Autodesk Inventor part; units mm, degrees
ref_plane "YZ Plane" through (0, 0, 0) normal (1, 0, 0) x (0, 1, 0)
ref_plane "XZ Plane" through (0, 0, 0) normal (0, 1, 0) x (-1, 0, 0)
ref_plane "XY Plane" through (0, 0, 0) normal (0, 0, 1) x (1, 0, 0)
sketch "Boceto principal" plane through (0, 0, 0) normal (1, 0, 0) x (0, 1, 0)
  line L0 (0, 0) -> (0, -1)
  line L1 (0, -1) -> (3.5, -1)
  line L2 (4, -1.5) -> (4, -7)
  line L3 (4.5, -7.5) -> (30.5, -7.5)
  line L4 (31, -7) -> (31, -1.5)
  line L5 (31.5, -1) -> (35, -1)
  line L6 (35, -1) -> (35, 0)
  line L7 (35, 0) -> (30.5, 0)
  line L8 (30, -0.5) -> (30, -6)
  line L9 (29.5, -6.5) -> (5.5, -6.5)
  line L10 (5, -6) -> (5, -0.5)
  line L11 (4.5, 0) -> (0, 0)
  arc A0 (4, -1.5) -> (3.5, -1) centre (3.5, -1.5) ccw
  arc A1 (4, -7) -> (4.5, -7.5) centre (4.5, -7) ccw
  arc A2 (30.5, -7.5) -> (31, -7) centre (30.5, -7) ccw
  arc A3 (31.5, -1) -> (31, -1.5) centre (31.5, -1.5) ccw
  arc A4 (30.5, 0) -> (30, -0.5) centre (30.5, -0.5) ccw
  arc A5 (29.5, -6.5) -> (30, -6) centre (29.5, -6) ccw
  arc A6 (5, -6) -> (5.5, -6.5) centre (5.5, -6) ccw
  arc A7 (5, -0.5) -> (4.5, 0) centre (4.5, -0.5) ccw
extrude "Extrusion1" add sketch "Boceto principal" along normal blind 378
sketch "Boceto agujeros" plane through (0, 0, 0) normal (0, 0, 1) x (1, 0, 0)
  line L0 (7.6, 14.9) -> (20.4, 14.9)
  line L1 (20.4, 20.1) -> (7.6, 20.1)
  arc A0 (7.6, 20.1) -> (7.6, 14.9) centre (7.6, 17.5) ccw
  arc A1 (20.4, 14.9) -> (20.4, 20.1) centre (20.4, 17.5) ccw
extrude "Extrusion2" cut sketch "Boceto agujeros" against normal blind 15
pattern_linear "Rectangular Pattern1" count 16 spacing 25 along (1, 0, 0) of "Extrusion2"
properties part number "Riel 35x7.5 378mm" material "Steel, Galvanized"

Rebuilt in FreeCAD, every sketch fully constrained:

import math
import FreeCAD as App
import Part
import Sketcher
from FreeCAD import Vector
Q = App.Units.Quantity

doc = App.newDocument("Part")
params = doc.addObject("Spreadsheet::Sheet", "Params")
for row, (alias, value) in enumerate([
    ("sketch1_radius", "0.5 mm"),
    ("sketch1_width", "26 mm"),
    ("sketch1_height", "1 mm"),
    ("sketch1_width2", "4.5 mm"),
    ("sketch1_height2", "5.5 mm"),
    ("pad1_length", "378 mm"),
    ("sketch2_radius", "2.6 mm"),
    ("sketch2_width", "12.8 mm"),
    ("pocket1_length", "15 mm"),
    ("linearpattern_pitch", "25 mm"),
], start=1):
    params.set(f"A{row}", alias)
    params.set(f"B{row}", "=" + value)
    params.setAlias(f"B{row}", alias)

body = doc.addObject("PartDesign::Body", "Body")

# Sketch on YZ plane
sketch1 = body.newObject("Sketcher::SketchObject", "Sketch")
sketch1.AttachmentSupport = (doc.getObject("YZ_Plane"), [""])
sketch1.MapMode = "FlatFace"
sketch1.addGeometry(Part.LineSegment(Vector(4.5, 0, 0), Vector(0, 0, 0)), False)
sketch1.addGeometry(Part.LineSegment(Vector(0, 0, 0), Vector(0, -1, 0)), False)
sketch1.addGeometry(Part.LineSegment(Vector(0, -1, 0), Vector(3.5, -1, 0)), False)
sketch1.addGeometry(Part.ArcOfCircle(Part.Circle(Vector(3.5, -1.5, 0), Vector(0, 0, 1), 0.5), math.radians(0), math.radians(90)), False)
sketch1.addGeometry(Part.LineSegment(Vector(4, -1.5, 0), Vector(4, -7, 0)), False)
sketch1.addGeometry(Part.ArcOfCircle(Part.Circle(Vector(4.5, -7, 0), Vector(0, 0, 1), 0.5), math.radians(180), math.radians(270)), False)
sketch1.addGeometry(Part.LineSegment(Vector(4.5, -7.5, 0), Vector(30.5, -7.5, 0)), False)
sketch1.addGeometry(Part.ArcOfCircle(Part.Circle(Vector(30.5, -7, 0), Vector(0, 0, 1), 0.5), math.radians(-90), math.radians(0)), False)
sketch1.addGeometry(Part.LineSegment(Vector(31, -7, 0), Vector(31, -1.5, 0)), False)
sketch1.addGeometry(Part.ArcOfCircle(Part.Circle(Vector(31.5, -1.5, 0), Vector(0, 0, 1), 0.5), math.radians(90), math.radians(180)), False)
sketch1.addGeometry(Part.LineSegment(Vector(31.5, -1, 0), Vector(35, -1, 0)), False)
sketch1.addGeometry(Part.LineSegment(Vector(35, -1, 0), Vector(35, 0, 0)), False)
sketch1.addGeometry(Part.LineSegment(Vector(35, 0, 0), Vector(30.5, 0, 0)), False)
sketch1.addGeometry(Part.ArcOfCircle(Part.Circle(Vector(30.5, -0.5, 0), Vector(0, 0, 1), 0.5), math.radians(90), math.radians(180)), False)
sketch1.addGeometry(Part.LineSegment(Vector(30, -0.5, 0), Vector(30, -6, 0)), False)
sketch1.addGeometry(Part.ArcOfCircle(Part.Circle(Vector(29.5, -6, 0), Vector(0, 0, 1), 0.5), math.radians(-90), math.radians(0)), False)
sketch1.addGeometry(Part.LineSegment(Vector(29.5, -6.5, 0), Vector(5.5, -6.5, 0)), False)
sketch1.addGeometry(Part.ArcOfCircle(Part.Circle(Vector(5.5, -6, 0), Vector(0, 0, 1), 0.5), math.radians(180), math.radians(270)), False)
sketch1.addGeometry(Part.LineSegment(Vector(5, -6, 0), Vector(5, -0.5, 0)), False)
sketch1.addGeometry(Part.ArcOfCircle(Part.Circle(Vector(4.5, -0.5, 0), Vector(0, 0, 1), 0.5), math.radians(0), math.radians(90)), False)
sketch1.addConstraint(Sketcher.Constraint("Coincident", 0, 2, 1, 1))
sketch1.addConstraint(Sketcher.Constraint("Coincident", 1, 2, 2, 1))
sketch1.addConstraint(Sketcher.Constraint("Tangent", 2, 2, 3, 2))
sketch1.addConstraint(Sketcher.Constraint("Tangent", 3, 1, 4, 1))
sketch1.addConstraint(Sketcher.Constraint("Tangent", 4, 2, 5, 1))
sketch1.addConstraint(Sketcher.Constraint("Tangent", 5, 2, 6, 1))
sketch1.addConstraint(Sketcher.Constraint("Tangent", 6, 2, 7, 1))
sketch1.addConstraint(Sketcher.Constraint("Tangent", 7, 2, 8, 1))
sketch1.addConstraint(Sketcher.Constraint("Tangent", 8, 2, 9, 2))
sketch1.addConstraint(Sketcher.Constraint("Tangent", 9, 1, 10, 1))
sketch1.addConstraint(Sketcher.Constraint("Coincident", 10, 2, 11, 1))
sketch1.addConstraint(Sketcher.Constraint("Coincident", 11, 2, 12, 1))
sketch1.addConstraint(Sketcher.Constraint("Tangent", 12, 2, 13, 1))
sketch1.addConstraint(Sketcher.Constraint("Tangent", 13, 2, 14, 1))
sketch1.addConstraint(Sketcher.Constraint("Tangent", 14, 2, 15, 2))
sketch1.addConstraint(Sketcher.Constraint("Tangent", 15, 1, 16, 1))
sketch1.addConstraint(Sketcher.Constraint("Tangent", 16, 2, 17, 2))
sketch1.addConstraint(Sketcher.Constraint("Tangent", 17, 1, 18, 1))
sketch1.addConstraint(Sketcher.Constraint("Tangent", 18, 2, 19, 1))
sketch1.addConstraint(Sketcher.Constraint("Tangent", 19, 2, 0, 1))
sketch1.addConstraint(Sketcher.Constraint("Horizontal", 0))
sketch1.addConstraint(Sketcher.Constraint("Vertical", 1))
sketch1.addConstraint(Sketcher.Constraint("Horizontal", 2))
sketch1.addConstraint(Sketcher.Constraint("Vertical", 4))
sketch1.addConstraint(Sketcher.Constraint("Horizontal", 6))
sketch1.addConstraint(Sketcher.Constraint("Vertical", 8))
sketch1.addConstraint(Sketcher.Constraint("Horizontal", 10))
sketch1.addConstraint(Sketcher.Constraint("Vertical", 11))
sketch1.addConstraint(Sketcher.Constraint("Horizontal", 12))
sketch1.addConstraint(Sketcher.Constraint("Vertical", 14))
sketch1.addConstraint(Sketcher.Constraint("Horizontal", 16))
sketch1.addConstraint(Sketcher.Constraint("Vertical", 18))
sketch1.addConstraint(Sketcher.Constraint("Coincident", 0, 2, -1, 1))
sketch1.addConstraint(Sketcher.Constraint("Equal", 3, 5))
sketch1.addConstraint(Sketcher.Constraint("Equal", 5, 7))
sketch1.addConstraint(Sketcher.Constraint("Equal", 7, 9))
sketch1.addConstraint(Sketcher.Constraint("Equal", 9, 13))
sketch1.addConstraint(Sketcher.Constraint("Equal", 13, 15))
sketch1.addConstraint(Sketcher.Constraint("Equal", 15, 17))
sketch1.addConstraint(Sketcher.Constraint("Equal", 17, 19))
sketch1.addConstraint(Sketcher.Constraint("PointOnObject", 11, 2, -1))
sketch1.addConstraint(Sketcher.Constraint("Horizontal", 3, 3, 9, 3))
sketch1.addConstraint(Sketcher.Constraint("Vertical", 7, 3, 13, 3))
sketch1.addConstraint(Sketcher.Constraint("Vertical", 5, 3, 19, 3))
sketch1.addConstraint(Sketcher.Constraint("Equal", 2, 10))
sketch1.addConstraint(Sketcher.Constraint("Equal", 8, 14))
sketch1.addConstraint(Sketcher.Constraint("Radius", 3, Q("0.5 mm")))
sketch1.addConstraint(Sketcher.Constraint("DistanceX", 6, 1, 6, 2, Q("26 mm")))
sketch1.addConstraint(Sketcher.Constraint("DistanceY", 1, 2, 1, 1, Q("1 mm")))
sketch1.addConstraint(Sketcher.Constraint("DistanceX", 0, 2, 0, 1, Q("4.5 mm")))
sketch1.addConstraint(Sketcher.Constraint("DistanceY", 4, 2, 4, 1, Q("5.5 mm")))
sketch1.setExpression("Constraints[46]", "Params.sketch1_radius")
sketch1.setExpression("Constraints[47]", "Params.sketch1_width")
sketch1.setExpression("Constraints[48]", "Params.sketch1_height")
sketch1.setExpression("Constraints[49]", "Params.sketch1_width2")
sketch1.setExpression("Constraints[50]", "Params.sketch1_height2")
pad1 = body.newObject("PartDesign::Pad", "Pad")
pad1.Profile = sketch1
pad1.setExpression("Length", "Params.pad1_length")

# Sketch on XY plane
sketch2 = body.newObject("Sketcher::SketchObject", "Sketch001")
sketch2.AttachmentSupport = (doc.getObject("XY_Plane"), [""])
sketch2.MapMode = "FlatFace"
sketch2.addGeometry(Part.ArcOfCircle(Part.Circle(Vector(7.6, 17.5, 0), Vector(0, 0, 1), 2.6), math.radians(90), math.radians(270)), False)
sketch2.addGeometry(Part.LineSegment(Vector(7.6, 14.9, 0), Vector(20.4, 14.9, 0)), False)
sketch2.addGeometry(Part.ArcOfCircle(Part.Circle(Vector(20.4, 17.5, 0), Vector(0, 0, 1), 2.6), math.radians(-90), math.radians(90)), False)
sketch2.addGeometry(Part.LineSegment(Vector(20.4, 20.1, 0), Vector(7.6, 20.1, 0)), False)
sketch2.addConstraint(Sketcher.Constraint("Tangent", 0, 2, 1, 1))
sketch2.addConstraint(Sketcher.Constraint("Tangent", 1, 2, 2, 1))
sketch2.addConstraint(Sketcher.Constraint("Tangent", 2, 2, 3, 1))
sketch2.addConstraint(Sketcher.Constraint("Tangent", 3, 2, 0, 1))
sketch2.addConstraint(Sketcher.Constraint("Horizontal", 1))
sketch2.addConstraint(Sketcher.Constraint("Horizontal", 3))
sketch2.addConstraint(Sketcher.Constraint("Radius", 0, Q("2.6 mm")))
sketch2.addConstraint(Sketcher.Constraint("DistanceX", 1, 1, 1, 2, Q("12.8 mm")))
sketch2.addConstraint(Sketcher.Constraint("DistanceX", -1, 1, 0, 3, Q("7.6 mm")))
sketch2.addConstraint(Sketcher.Constraint("DistanceY", -1, 1, 0, 3, Q("17.5 mm")))
sketch2.setExpression("Constraints[6]", "Params.sketch2_radius")
sketch2.setExpression("Constraints[7]", "Params.sketch2_width")
pocket1 = body.newObject("PartDesign::Pocket", "Pocket")
pocket1.Profile = sketch2
pocket1.setExpression("Length", "Params.pocket1_length")
doc.recompute()

linearpattern = body.newObject("PartDesign::LinearPattern", "LinearPattern")
linearpattern.Originals = [pocket1]
linearpattern.Direction = (doc.getObject("X_Axis"), [""])
linearpattern.Mode = "offset"
linearpattern.setExpression("Offset", "Params.linearpattern_pitch")
linearpattern.Occurrences = 16
body.Tip = linearpattern

doc.recompute()
